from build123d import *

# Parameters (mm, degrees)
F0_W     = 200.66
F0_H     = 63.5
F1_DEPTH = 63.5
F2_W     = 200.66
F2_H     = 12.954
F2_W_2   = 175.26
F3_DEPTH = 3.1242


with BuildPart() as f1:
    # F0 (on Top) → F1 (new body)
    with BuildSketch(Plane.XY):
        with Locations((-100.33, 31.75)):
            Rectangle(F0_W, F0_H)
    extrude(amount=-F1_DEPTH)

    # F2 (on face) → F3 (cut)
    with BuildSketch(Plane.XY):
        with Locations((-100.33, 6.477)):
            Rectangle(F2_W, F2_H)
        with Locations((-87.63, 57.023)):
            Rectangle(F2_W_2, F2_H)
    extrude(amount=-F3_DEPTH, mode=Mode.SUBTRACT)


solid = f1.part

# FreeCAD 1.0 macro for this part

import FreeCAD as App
import Part
import Sketcher
from FreeCAD import Vector
Q = App.Units.Quantity

doc = App.newDocument("Part")
params = doc.addObject("Spreadsheet::Sheet", "Params")
for row, (alias, value) in enumerate([
    ("sketch1_width", "7.9 in"),
    ("sketch1_height", "2.5 in"),
    ("pad1_length", "2.5 in"),
    ("sketch2_width", "7.9 in"),
    ("sketch2_width2", "6.9 in"),
    ("sketch2_height", "0.51 in"),
    ("pocket1_length", "0.123 in"),
], start=1):
    params.set(f"A{row}", alias)
    params.set(f"B{row}", "=" + value)
    params.setAlias(f"B{row}", alias)

body = doc.addObject("PartDesign::Body", "Body")

sketch1 = body.newObject("Sketcher::SketchObject", "Sketch")
sketch1.AttachmentSupport = (doc.getObject("XY_Plane"), [""])
sketch1.MapMode = "FlatFace"
sketch1.addGeometry([
    Part.LineSegment(Vector(-201, 64, 0), Vector(-201, 0, 0)),
    Part.LineSegment(Vector(-201, 0, 0), Vector(0, 0, 0)),
    Part.LineSegment(Vector(0, 0, 0), Vector(0, 64, 0)),
    Part.LineSegment(Vector(0, 64, 0), Vector(-201, 64, 0)),
], False)
sketch1.addConstraint([
    Sketcher.Constraint("Coincident", 0, 2, 1, 1),
    Sketcher.Constraint("Coincident", 1, 2, 2, 1),
    Sketcher.Constraint("Coincident", 2, 2, 3, 1),
    Sketcher.Constraint("Coincident", 3, 2, 0, 1),
    Sketcher.Constraint("Vertical", 0),
    Sketcher.Constraint("Horizontal", 1),
    Sketcher.Constraint("Vertical", 2),
    Sketcher.Constraint("Horizontal", 3),
    Sketcher.Constraint("Coincident", 1, 2, -1, 1),
    Sketcher.Constraint("DistanceX", 1, 1, 1, 2, Q("7.9 in")),
    Sketcher.Constraint("DistanceY", 0, 2, 0, 1, Q("2.5 in")),
])
sketch1.setExpression("Constraints[9]", "Params.sketch1_width")
sketch1.setExpression("Constraints[10]", "Params.sketch1_height")
pad1 = body.newObject("PartDesign::Pad", "Pad")
pad1.Profile = sketch1
pad1.setExpression("Length", "Params.pad1_length")
pad1.Reversed = True

sketch2 = body.newObject("Sketcher::SketchObject", "Sketch001")
sketch2.AttachmentSupport = (doc.getObject("XY_Plane"), [""])
sketch2.MapMode = "FlatFace"
sketch2.addGeometry([
    Part.LineSegment(Vector(-201, 13, 0), Vector(-201, 0, 0)),
    Part.LineSegment(Vector(-201, 0, 0), Vector(0, 0, 0)),
    Part.LineSegment(Vector(0, 0, 0), Vector(0, 13, 0)),
    Part.LineSegment(Vector(0, 13, 0), Vector(-201, 13, 0)),
    Part.LineSegment(Vector(-175, 64, 0), Vector(-175, 51, 0)),
    Part.LineSegment(Vector(-175, 51, 0), Vector(0, 51, 0)),
    Part.LineSegment(Vector(0, 51, 0), Vector(0, 64, 0)),
    Part.LineSegment(Vector(0, 64, 0), Vector(-175, 64, 0)),
], False)
sketch2.addConstraint([
    Sketcher.Constraint("Coincident", 0, 2, 1, 1),
    Sketcher.Constraint("Coincident", 1, 2, 2, 1),
    Sketcher.Constraint("Coincident", 2, 2, 3, 1),
    Sketcher.Constraint("Coincident", 3, 2, 0, 1),
    Sketcher.Constraint("Coincident", 4, 2, 5, 1),
    Sketcher.Constraint("Coincident", 5, 2, 6, 1),
    Sketcher.Constraint("Coincident", 6, 2, 7, 1),
    Sketcher.Constraint("Coincident", 7, 2, 4, 1),
    Sketcher.Constraint("Vertical", 0),
    Sketcher.Constraint("Horizontal", 1),
    Sketcher.Constraint("Vertical", 2),
    Sketcher.Constraint("Horizontal", 3),
    Sketcher.Constraint("Vertical", 4),
    Sketcher.Constraint("Horizontal", 5),
    Sketcher.Constraint("Vertical", 6),
    Sketcher.Constraint("Horizontal", 7),
    Sketcher.Constraint("Coincident", 1, 2, -1, 1),
    Sketcher.Constraint("PointOnObject", 5, 2, -2),
    Sketcher.Constraint("Equal", 2, 4),
    Sketcher.Constraint("DistanceX", 1, 1, 1, 2, Q("7.9 in")),
    Sketcher.Constraint("DistanceX", 5, 1, 5, 2, Q("6.9 in")),
    Sketcher.Constraint("DistanceY", 0, 2, 0, 1, Q("0.51 in")),
    Sketcher.Constraint("DistanceY", -1, 1, 6, 2, Q("2.5 in")),
])
sketch2.setExpression("Constraints[19]", "Params.sketch2_width")
sketch2.setExpression("Constraints[20]", "Params.sketch2_width2")
sketch2.setExpression("Constraints[21]", "Params.sketch2_height")
pocket1 = body.newObject("PartDesign::Pocket", "Pocket")
pocket1.Profile = sketch2
pocket1.setExpression("Length", "Params.pocket1_length")

doc.recompute()
